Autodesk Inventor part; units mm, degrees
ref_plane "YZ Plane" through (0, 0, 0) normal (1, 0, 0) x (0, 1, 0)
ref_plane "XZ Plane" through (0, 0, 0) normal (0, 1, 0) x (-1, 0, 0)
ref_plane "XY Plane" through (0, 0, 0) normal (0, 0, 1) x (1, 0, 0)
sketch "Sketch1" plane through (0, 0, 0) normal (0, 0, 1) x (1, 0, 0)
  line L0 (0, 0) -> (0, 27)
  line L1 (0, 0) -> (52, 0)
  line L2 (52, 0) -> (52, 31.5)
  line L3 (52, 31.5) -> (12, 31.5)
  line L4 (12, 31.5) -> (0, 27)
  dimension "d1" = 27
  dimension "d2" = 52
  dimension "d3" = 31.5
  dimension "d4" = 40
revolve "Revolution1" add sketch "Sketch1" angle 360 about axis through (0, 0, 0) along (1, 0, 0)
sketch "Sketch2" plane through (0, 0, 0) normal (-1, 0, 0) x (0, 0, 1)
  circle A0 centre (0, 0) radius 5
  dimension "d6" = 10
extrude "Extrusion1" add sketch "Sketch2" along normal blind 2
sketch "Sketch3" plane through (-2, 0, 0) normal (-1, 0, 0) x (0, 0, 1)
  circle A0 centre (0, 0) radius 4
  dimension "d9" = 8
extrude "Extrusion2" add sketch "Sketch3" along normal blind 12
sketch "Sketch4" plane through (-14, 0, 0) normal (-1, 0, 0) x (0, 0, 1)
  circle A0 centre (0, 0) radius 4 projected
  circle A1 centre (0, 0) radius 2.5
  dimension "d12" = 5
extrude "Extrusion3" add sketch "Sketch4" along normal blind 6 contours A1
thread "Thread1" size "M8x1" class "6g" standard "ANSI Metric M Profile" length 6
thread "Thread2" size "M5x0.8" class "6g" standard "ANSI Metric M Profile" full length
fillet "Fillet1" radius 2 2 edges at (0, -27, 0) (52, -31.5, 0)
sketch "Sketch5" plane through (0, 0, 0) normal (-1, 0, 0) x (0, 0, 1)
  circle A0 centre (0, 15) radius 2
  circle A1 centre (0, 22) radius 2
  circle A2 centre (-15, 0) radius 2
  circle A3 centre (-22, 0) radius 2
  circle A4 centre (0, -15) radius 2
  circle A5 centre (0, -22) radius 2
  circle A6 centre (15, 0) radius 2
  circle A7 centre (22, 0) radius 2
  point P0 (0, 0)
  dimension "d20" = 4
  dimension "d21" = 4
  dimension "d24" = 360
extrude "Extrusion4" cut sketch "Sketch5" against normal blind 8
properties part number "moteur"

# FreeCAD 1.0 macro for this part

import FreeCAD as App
import Part
import Sketcher

V = App.Vector
Q = App.Units.Quantity


def edges_at(feature, points):
    """Names of the edges that pass closest to the given points."""
    edges = feature.Shape.Edges
    near = lambda p: min(range(len(edges)), key=lambda i: edges[i].distToShape(Part.Vertex(*p))[0])
    return sorted({f"Edge{near(p) + 1}" for p in points})

doc = App.newDocument("Part")
body = doc.addObject("PartDesign::Body", "Body")

# Sketch on XY plane
sketch1 = doc.addObject("Sketcher::SketchObject", "Sketch")
body.addObject(sketch1)
sketch1.AttachmentSupport = (doc.XY_Plane, [""])
sketch1.MapMode = "FlatFace"
sketch1.addGeometry([
    Part.LineSegment(V(0, 27, 0), V(0, 0, 0)),  # 0
    Part.LineSegment(V(0, 0, 0), V(52, 0, 0)),  # 1
    Part.LineSegment(V(52, 0, 0), V(52, 32, 0)),  # 2
    Part.LineSegment(V(52, 32, 0), V(12, 32, 0)),  # 3
    Part.LineSegment(V(12, 32, 0), V(0, 27, 0)),  # 4
], False)
sketch1.addConstraint([
    Sketcher.Constraint("Coincident", 0, 2, 1, 1),
    Sketcher.Constraint("Coincident", 1, 2, 2, 1),
    Sketcher.Constraint("Coincident", 2, 2, 3, 1),
    Sketcher.Constraint("Coincident", 3, 2, 4, 1),
    Sketcher.Constraint("Coincident", 4, 2, 0, 1),
    Sketcher.Constraint("Vertical", 0),
    Sketcher.Constraint("Horizontal", 1),
    Sketcher.Constraint("Vertical", 2),
    Sketcher.Constraint("Horizontal", 3),
    Sketcher.Constraint("Coincident", 0, 2, -1, 1),
    Sketcher.Constraint("DistanceX", 1, 1, 1, 2, Q("52 mm")),
    Sketcher.Constraint("DistanceX", 3, 2, 3, 1, Q("40 mm")),
    Sketcher.Constraint("DistanceY", 0, 2, 0, 1, Q("27 mm")),
    Sketcher.Constraint("DistanceY", 2, 1, 2, 2, Q("31.5 mm")),
])
revolution = doc.addObject("PartDesign::Revolution", "Revolution")
body.addObject(revolution)
revolution.Profile = sketch1
revolution.ReferenceAxis = (sketch1, ["H_Axis"])
revolution.Angle = 360

# Sketch on YZ plane
sketch2 = doc.addObject("Sketcher::SketchObject", "Sketch001")
body.addObject(sketch2)
sketch2.AttachmentSupport = (doc.YZ_Plane, [""])
sketch2.MapMode = "FlatFace"
sketch2.addGeometry(Part.Circle(V(0, 0, 0), V(0, 0, 1), 5), False)
sketch2.addConstraint([
    Sketcher.Constraint("Coincident", 0, 3, -1, 1),
    Sketcher.Constraint("Diameter", 0, Q("10 mm")),
])
pad1 = doc.addObject("PartDesign::Pad", "Pad")
body.addObject(pad1)
pad1.Profile = sketch2
pad1.Length = 2
pad1.Reversed = True

# Sketch on YZ plane
sketch3 = doc.addObject("Sketcher::SketchObject", "Sketch002")
body.addObject(sketch3)
sketch3.AttachmentSupport = (doc.YZ_Plane, [""])
sketch3.MapMode = "FlatFace"
sketch3.AttachmentOffset = App.Placement(V(0, 0, -2), App.Rotation())
sketch3.addGeometry(Part.Circle(V(0, 0, 0), V(0, 0, 1), 4), False)
sketch3.addConstraint([
    Sketcher.Constraint("Coincident", 0, 3, -1, 1),
    Sketcher.Constraint("Diameter", 0, Q("8 mm")),
])
pad2 = doc.addObject("PartDesign::Pad", "Pad001")
body.addObject(pad2)
pad2.Profile = sketch3
pad2.Length = 12
pad2.Reversed = True

# Sketch on YZ plane
sketch4 = doc.addObject("Sketcher::SketchObject", "Sketch003")
body.addObject(sketch4)
sketch4.AttachmentSupport = (doc.YZ_Plane, [""])
sketch4.MapMode = "FlatFace"
sketch4.AttachmentOffset = App.Placement(V(0, 0, -14), App.Rotation())
sketch4.addGeometry(Part.Circle(V(0, 0, 0), V(0, 0, 1), 2.5), False)
sketch4.addConstraint([
    Sketcher.Constraint("Coincident", 0, 3, -1, 1),
    Sketcher.Constraint("Diameter", 0, Q("5 mm")),
])
pad3 = doc.addObject("PartDesign::Pad", "Pad002")
body.addObject(pad3)
pad3.Profile = sketch4
pad3.Length = 6
pad3.Reversed = True
doc.recompute()

fillet = doc.addObject("PartDesign::Fillet", "Fillet")
body.addObject(fillet)
fillet.Base = (pad3, edges_at(pad3, [(0, -27, 0), (52, -31.5, 0)]))
fillet.Radius = 2

# Sketch on YZ plane
sketch5 = doc.addObject("Sketcher::SketchObject", "Sketch004")
body.addObject(sketch5)
sketch5.AttachmentSupport = (doc.YZ_Plane, [""])
sketch5.MapMode = "FlatFace"
sketch5.addGeometry([
    Part.Circle(V(15, 0, 0), V(0, 0, 1), 2),  # 0
    Part.Circle(V(22, 0, 0), V(0, 0, 1), 2),  # 1
    Part.Circle(V(0, -15, 0), V(0, 0, 1), 2),  # 2
    Part.Circle(V(0, -22, 0), V(0, 0, 1), 2),  # 3
    Part.Circle(V(-15, 0, 0), V(0, 0, 1), 2),  # 4
    Part.Circle(V(-22, 0, 0), V(0, 0, 1), 2),  # 5
    Part.Circle(V(0, 15, 0), V(0, 0, 1), 2),  # 6
    Part.Circle(V(0, 22, 0), V(0, 0, 1), 2),  # 7
], False)
sketch5.addConstraint([
    Sketcher.Constraint("Equal", 0, 1),
    Sketcher.Constraint("Equal", 1, 2),
    Sketcher.Constraint("Equal", 2, 3),
    Sketcher.Constraint("Equal", 3, 4),
    Sketcher.Constraint("Equal", 4, 5),
    Sketcher.Constraint("Equal", 5, 6),
    Sketcher.Constraint("Equal", 6, 7),
    Sketcher.Constraint("Symmetric", 0, 3, 4, 3, -1, 1),
    Sketcher.Constraint("Symmetric", 1, 3, 5, 3, -1, 1),
    Sketcher.Constraint("Symmetric", 2, 3, 6, 3, -1, 1),
    Sketcher.Constraint("Symmetric", 3, 3, 7, 3, -1, 1),
    Sketcher.Constraint("PointOnObject", 0, 3, -1),
    Sketcher.Constraint("PointOnObject", 1, 3, -1),
    Sketcher.Constraint("PointOnObject", 2, 3, -2),
    Sketcher.Constraint("PointOnObject", 3, 3, -2),
    Sketcher.Constraint("Diameter", 0, Q("4 mm")),
    Sketcher.Constraint("DistanceX", -1, 1, 0, 3, Q("15 mm")),
    Sketcher.Constraint("DistanceX", -1, 1, 1, 3, Q("22 mm")),
    Sketcher.Constraint("DistanceY", 2, 3, -1, 1, Q("15 mm")),
    Sketcher.Constraint("DistanceY", 3, 3, -1, 1, Q("22 mm")),
])
pocket1 = doc.addObject("PartDesign::Pocket", "Pocket")
body.addObject(pocket1)
pocket1.Profile = sketch5
pocket1.Length = 8
pocket1.Reversed = True

doc.recompute()
